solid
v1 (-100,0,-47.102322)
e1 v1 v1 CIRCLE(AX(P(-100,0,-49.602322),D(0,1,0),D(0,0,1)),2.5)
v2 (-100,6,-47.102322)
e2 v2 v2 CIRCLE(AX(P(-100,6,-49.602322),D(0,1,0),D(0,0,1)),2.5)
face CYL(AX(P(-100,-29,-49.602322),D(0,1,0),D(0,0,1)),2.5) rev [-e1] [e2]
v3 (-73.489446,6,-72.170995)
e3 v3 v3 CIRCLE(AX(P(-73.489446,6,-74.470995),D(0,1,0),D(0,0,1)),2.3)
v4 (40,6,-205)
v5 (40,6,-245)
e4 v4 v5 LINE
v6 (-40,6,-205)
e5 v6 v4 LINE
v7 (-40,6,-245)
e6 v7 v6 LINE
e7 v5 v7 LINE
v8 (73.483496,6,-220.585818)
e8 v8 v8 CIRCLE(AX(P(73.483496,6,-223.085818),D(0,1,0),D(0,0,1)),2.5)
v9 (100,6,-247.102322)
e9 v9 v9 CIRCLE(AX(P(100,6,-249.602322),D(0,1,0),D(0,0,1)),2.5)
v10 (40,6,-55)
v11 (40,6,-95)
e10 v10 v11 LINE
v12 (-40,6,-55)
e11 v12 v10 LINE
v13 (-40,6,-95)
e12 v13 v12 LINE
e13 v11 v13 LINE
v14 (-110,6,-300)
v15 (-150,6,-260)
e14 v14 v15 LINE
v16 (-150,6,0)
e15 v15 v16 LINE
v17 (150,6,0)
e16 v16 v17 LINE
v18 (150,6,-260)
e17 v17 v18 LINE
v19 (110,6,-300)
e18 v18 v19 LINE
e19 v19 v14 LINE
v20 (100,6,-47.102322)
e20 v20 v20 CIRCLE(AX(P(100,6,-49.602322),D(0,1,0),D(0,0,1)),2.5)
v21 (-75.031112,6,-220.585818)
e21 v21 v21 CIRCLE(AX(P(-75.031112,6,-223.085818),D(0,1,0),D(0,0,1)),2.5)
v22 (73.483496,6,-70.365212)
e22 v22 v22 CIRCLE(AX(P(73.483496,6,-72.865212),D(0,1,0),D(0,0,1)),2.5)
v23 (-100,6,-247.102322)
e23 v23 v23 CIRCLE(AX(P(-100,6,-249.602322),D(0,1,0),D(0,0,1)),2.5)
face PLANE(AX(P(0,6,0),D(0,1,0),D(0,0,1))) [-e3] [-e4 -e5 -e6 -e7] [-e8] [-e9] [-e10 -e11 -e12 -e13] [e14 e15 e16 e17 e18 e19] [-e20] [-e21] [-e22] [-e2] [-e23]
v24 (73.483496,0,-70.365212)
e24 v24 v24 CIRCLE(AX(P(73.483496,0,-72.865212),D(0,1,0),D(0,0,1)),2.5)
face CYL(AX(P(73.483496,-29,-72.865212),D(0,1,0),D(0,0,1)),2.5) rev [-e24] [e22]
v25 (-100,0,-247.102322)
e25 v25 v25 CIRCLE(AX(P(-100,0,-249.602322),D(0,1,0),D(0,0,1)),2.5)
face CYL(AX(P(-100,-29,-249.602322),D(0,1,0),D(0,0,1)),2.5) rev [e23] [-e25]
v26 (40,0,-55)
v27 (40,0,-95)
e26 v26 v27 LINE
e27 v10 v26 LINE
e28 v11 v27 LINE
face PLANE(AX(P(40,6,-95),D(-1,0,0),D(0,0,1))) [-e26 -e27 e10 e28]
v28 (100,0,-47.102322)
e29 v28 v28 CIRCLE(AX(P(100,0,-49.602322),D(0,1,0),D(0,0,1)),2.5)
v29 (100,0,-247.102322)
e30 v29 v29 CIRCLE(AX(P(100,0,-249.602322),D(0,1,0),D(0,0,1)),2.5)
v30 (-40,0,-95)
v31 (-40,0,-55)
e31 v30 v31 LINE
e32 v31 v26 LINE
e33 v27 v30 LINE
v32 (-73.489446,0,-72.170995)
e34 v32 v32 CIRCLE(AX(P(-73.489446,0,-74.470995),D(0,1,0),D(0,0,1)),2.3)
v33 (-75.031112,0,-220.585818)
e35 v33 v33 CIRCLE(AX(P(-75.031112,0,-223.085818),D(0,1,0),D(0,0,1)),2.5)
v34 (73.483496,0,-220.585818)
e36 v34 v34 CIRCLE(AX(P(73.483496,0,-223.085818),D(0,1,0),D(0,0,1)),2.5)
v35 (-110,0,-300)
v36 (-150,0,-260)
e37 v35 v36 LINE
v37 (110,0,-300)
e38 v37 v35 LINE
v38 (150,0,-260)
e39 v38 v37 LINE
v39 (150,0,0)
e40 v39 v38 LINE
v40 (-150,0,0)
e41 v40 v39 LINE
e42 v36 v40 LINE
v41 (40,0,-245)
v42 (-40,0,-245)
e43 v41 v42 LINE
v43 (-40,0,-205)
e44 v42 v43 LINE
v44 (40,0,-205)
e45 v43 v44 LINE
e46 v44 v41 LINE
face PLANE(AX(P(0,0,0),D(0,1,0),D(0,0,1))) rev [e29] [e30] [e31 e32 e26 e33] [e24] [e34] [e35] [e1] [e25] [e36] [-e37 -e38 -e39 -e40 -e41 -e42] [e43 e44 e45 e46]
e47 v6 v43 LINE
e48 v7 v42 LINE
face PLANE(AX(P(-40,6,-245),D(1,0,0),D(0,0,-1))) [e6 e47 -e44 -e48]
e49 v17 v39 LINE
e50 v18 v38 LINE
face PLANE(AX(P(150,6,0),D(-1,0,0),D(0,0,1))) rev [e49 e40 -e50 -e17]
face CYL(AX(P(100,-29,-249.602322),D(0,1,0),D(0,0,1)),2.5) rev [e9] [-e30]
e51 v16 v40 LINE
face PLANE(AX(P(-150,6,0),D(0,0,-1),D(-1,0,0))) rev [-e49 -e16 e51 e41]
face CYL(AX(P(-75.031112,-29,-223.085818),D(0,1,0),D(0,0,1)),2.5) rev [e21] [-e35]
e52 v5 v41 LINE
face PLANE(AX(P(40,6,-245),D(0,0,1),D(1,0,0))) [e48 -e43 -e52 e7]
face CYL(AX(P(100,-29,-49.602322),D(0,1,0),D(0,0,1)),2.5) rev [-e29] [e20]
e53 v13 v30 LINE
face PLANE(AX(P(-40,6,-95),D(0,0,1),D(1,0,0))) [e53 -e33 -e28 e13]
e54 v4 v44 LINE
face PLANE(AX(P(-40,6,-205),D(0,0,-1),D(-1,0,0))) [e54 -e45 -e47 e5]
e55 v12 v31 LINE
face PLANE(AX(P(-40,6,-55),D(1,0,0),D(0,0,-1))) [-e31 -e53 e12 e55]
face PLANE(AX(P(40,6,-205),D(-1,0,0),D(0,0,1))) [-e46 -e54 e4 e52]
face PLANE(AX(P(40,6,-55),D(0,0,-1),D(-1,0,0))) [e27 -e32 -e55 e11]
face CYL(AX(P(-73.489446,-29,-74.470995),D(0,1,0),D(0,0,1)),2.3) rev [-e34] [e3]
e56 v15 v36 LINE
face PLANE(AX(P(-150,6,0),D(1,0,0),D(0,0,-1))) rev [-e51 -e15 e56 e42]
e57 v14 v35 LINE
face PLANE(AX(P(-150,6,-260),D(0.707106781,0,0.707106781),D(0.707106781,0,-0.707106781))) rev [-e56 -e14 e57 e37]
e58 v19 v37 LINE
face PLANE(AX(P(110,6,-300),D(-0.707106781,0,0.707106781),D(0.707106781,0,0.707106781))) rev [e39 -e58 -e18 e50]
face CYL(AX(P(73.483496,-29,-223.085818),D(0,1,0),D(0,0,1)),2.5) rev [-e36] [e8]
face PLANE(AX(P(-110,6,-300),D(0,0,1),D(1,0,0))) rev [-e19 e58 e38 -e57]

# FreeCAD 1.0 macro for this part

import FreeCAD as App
import Part
import Sketcher

V = App.Vector
Q = App.Units.Quantity


def add_polygon(sketch, points):
    """Adds a closed chain of lines whose ends are joined by coincident constraints."""
    first, n = sketch.GeometryCount, len(points)
    for a, b in zip(points, points[1:] + points[:1]):
        sketch.addGeometry(Part.LineSegment(App.Vector(*a, 0), App.Vector(*b, 0)), False)
    for i in range(n):
        sketch.addConstraint(Sketcher.Constraint("Coincident", first + i, 2, first + (i + 1) % n, 1))

doc = App.newDocument("Part")
body = doc.addObject("PartDesign::Body", "Body")

sketch1 = body.newObject("Sketcher::SketchObject", "Sketch")
sketch1.AttachmentSupport = (doc.getObject("XZ_Plane"), [""])
sketch1.MapMode = "FlatFace"
add_polygon(sketch1, [(-150, -260), (-150, 0), (150, 0), (150, -260), (110, -300), (-110, -300)])
add_polygon(sketch1, [(-40, -55), (-40, -95), (40, -95), (40, -55)])
add_polygon(sketch1, [(-40, -205), (-40, -245), (40, -245), (40, -205)])
sketch1.addConstraint(Sketcher.Constraint("Vertical", 0))
sketch1.addConstraint(Sketcher.Constraint("Horizontal", 1))
sketch1.addConstraint(Sketcher.Constraint("Vertical", 2))
sketch1.addConstraint(Sketcher.Constraint("Horizontal", 4))
sketch1.addConstraint(Sketcher.Constraint("Vertical", 6))
sketch1.addConstraint(Sketcher.Constraint("Horizontal", 7))
sketch1.addConstraint(Sketcher.Constraint("Vertical", 8))
sketch1.addConstraint(Sketcher.Constraint("Horizontal", 9))
sketch1.addConstraint(Sketcher.Constraint("Vertical", 10))
sketch1.addConstraint(Sketcher.Constraint("Horizontal", 11))
sketch1.addConstraint(Sketcher.Constraint("Vertical", 12))
sketch1.addConstraint(Sketcher.Constraint("Horizontal", 13))
sketch1.addConstraint(Sketcher.Constraint("Symmetric", 0, 2, 1, 2, -1, 1))
sketch1.addConstraint(Sketcher.Constraint("Perpendicular", 3, 5))
sketch1.addConstraint(Sketcher.Constraint("Horizontal", 2, 2, 5, 2))
sketch1.addConstraint(Sketcher.Constraint("Vertical", 9, 2, 10, 2))
sketch1.addConstraint(Sketcher.Constraint("Vertical", 8, 2, 11, 2))
sketch1.addConstraint(Sketcher.Constraint("Equal", 8, 10))
sketch1.addConstraint(Sketcher.Constraint("Equal", 3, 5))
sketch1.addConstraint(Sketcher.Constraint("DistanceX", 1, 1, 1, 2, Q("300 mm")))
sketch1.addConstraint(Sketcher.Constraint("DistanceX", 4, 2, 4, 1, Q("220 mm")))
sketch1.addConstraint(Sketcher.Constraint("DistanceX", 7, 1, 7, 2, Q("80 mm")))
sketch1.addConstraint(Sketcher.Constraint("DistanceY", 0, 1, 0, 2, Q("260 mm")))
sketch1.addConstraint(Sketcher.Constraint("DistanceY", 6, 2, 6, 1, Q("40 mm")))
sketch1.addConstraint(Sketcher.Constraint("DistanceX", 6, 2, -1, 1, Q("40 mm")))
sketch1.addConstraint(Sketcher.Constraint("DistanceY", 6, 2, -1, 1, Q("95 mm")))
sketch1.addConstraint(Sketcher.Constraint("DistanceY", 10, 2, -1, 1, Q("245 mm")))
pad1 = body.newObject("PartDesign::Pad", "Pad")
pad1.Profile = sketch1
pad1.Length = 6
pad1.Reversed = True

sketch2 = body.newObject("Sketcher::SketchObject", "Sketch001")
sketch2.AttachmentSupport = (doc.getObject("XZ_Plane"), [""])
sketch2.MapMode = "FlatFace"
sketch2.AttachmentOffset = App.Placement(V(0, 0, -6), App.Rotation())
sketch2.addGeometry(Part.Circle(V(-100, -249.6, 0), V(0, 0, 1), 2.5), False)
sketch2.addGeometry(Part.Circle(V(-75, -223.1, 0), V(0, 0, 1), 2.5), False)
sketch2.addGeometry(Part.Circle(V(73.5, -223.1, 0), V(0, 0, 1), 2.5), False)
sketch2.addGeometry(Part.Circle(V(100, -249.6, 0), V(0, 0, 1), 2.5), False)
sketch2.addGeometry(Part.Circle(V(73.5, -72.9, 0), V(0, 0, 1), 2.5), False)
sketch2.addGeometry(Part.Circle(V(100, -49.6, 0), V(0, 0, 1), 2.5), False)
sketch2.addGeometry(Part.Circle(V(-73.5, -74.5, 0), V(0, 0, 1), 2.3), False)
sketch2.addGeometry(Part.Circle(V(-100, -49.6, 0), V(0, 0, 1), 2.5), False)
sketch2.addConstraint(Sketcher.Constraint("Equal", 0, 1))
sketch2.addConstraint(Sketcher.Constraint("Equal", 1, 2))
sketch2.addConstraint(Sketcher.Constraint("Equal", 2, 3))
sketch2.addConstraint(Sketcher.Constraint("Equal", 3, 4))
sketch2.addConstraint(Sketcher.Constraint("Equal", 4, 5))
sketch2.addConstraint(Sketcher.Constraint("Equal", 5, 7))
sketch2.addConstraint(Sketcher.Constraint("Symmetric", 0, 3, 3, 3, -2))
sketch2.addConstraint(Sketcher.Constraint("Symmetric", 5, 3, 7, 3, -2))
sketch2.addConstraint(Sketcher.Constraint("Horizontal", 1, 3, 2, 3))
sketch2.addConstraint(Sketcher.Constraint("Vertical", 2, 3, 4, 3))
sketch2.addConstraint(Sketcher.Constraint("Vertical", 3, 3, 5, 3))
sketch2.addConstraint(Sketcher.Constraint("Diameter", 0, Q("5 mm")))
sketch2.addConstraint(Sketcher.Constraint("Diameter", 6, Q("4.6 mm")))
sketch2.addConstraint(Sketcher.Constraint("DistanceX", 0, 3, -1, 1, Q("100 mm")))
sketch2.addConstraint(Sketcher.Constraint("DistanceY", 3, 3, 5, 3, Q("200 mm")))
sketch2.addConstraint(Sketcher.Constraint("DistanceX", 1, 3, -1, 1, Q("75.031112 mm")))
sketch2.addConstraint(Sketcher.Constraint("DistanceY", 3, 3, 4, 3, Q("176.73711 mm")))
sketch2.addConstraint(Sketcher.Constraint("DistanceY", 0, 3, -1, 1, Q("249.602322 mm")))
sketch2.addConstraint(Sketcher.Constraint("DistanceY", 1, 3, -1, 1, Q("223.085818 mm")))
sketch2.addConstraint(Sketcher.Constraint("DistanceX", -1, 1, 2, 3, Q("73.483496 mm")))
sketch2.addConstraint(Sketcher.Constraint("DistanceX", 6, 3, -1, 1, Q("73.489446 mm")))
sketch2.addConstraint(Sketcher.Constraint("DistanceY", 6, 3, -1, 1, Q("74.470995 mm")))
pocket1 = body.newObject("PartDesign::Pocket", "Pocket")
pocket1.Profile = sketch2
pocket1.Length = 35
pocket1.Reversed = True

doc.recompute()
